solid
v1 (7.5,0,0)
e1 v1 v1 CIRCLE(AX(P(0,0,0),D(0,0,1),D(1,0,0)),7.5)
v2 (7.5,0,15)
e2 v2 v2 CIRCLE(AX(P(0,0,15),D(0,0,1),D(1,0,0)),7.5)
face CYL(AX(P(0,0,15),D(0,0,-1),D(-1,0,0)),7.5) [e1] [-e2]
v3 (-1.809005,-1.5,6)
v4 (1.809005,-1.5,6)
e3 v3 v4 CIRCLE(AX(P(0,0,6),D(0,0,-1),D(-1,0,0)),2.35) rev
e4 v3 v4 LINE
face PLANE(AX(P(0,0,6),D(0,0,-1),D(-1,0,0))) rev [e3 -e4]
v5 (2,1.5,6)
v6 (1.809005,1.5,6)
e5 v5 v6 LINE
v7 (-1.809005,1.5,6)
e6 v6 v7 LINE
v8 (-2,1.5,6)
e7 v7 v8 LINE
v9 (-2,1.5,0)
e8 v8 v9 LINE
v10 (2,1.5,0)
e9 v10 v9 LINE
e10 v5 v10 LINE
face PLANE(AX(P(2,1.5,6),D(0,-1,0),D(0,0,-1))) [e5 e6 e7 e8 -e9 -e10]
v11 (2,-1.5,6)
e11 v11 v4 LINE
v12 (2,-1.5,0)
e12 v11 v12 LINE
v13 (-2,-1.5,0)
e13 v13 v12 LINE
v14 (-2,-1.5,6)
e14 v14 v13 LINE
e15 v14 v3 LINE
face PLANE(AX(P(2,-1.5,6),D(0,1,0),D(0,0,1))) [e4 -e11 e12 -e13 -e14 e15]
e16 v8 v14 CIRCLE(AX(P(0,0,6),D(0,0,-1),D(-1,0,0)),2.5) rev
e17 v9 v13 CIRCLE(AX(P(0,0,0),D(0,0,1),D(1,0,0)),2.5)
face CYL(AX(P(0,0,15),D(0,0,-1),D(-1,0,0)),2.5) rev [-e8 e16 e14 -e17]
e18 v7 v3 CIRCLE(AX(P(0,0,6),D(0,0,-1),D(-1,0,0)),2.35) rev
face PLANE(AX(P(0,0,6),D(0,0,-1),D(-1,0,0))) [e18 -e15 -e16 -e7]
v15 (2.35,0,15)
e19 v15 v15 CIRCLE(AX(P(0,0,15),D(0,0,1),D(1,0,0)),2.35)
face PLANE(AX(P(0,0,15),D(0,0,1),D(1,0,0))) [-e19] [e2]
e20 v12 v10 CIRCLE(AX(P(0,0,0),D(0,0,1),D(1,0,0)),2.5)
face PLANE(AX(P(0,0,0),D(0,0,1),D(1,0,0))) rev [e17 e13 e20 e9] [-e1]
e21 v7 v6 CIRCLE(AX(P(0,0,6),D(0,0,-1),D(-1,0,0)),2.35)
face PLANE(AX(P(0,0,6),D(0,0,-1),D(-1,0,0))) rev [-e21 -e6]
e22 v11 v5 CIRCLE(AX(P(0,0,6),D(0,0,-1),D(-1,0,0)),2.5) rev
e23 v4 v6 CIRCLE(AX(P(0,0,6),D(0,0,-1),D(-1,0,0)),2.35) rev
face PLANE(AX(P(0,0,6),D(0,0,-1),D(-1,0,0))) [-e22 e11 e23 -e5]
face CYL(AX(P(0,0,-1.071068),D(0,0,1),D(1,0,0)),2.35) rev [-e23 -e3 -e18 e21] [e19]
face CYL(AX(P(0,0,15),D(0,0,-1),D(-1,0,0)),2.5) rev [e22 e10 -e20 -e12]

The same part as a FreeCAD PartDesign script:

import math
import FreeCAD as App
import Part
import Sketcher

V = App.Vector

doc = App.newDocument("Part")
body = doc.addObject("PartDesign::Body", "Body")

sketch1 = body.newObject("Sketcher::SketchObject", "Sketch")
sketch1.AttachmentSupport = (doc.getObject("XY_Plane"), [""])
sketch1.MapMode = "FlatFace"
sketch1.addGeometry([
    Part.Circle(V(0, 0, 0), V(0, 0, 1), 7.5),
    Part.Circle(V(0, 0, 0), V(0, 0, 1), 2.5),
], False)
sketch1.addConstraint([
    Sketcher.Constraint("Coincident", 0, 3, -1, 1),
    Sketcher.Constraint("Coincident", 1, 3, -1, 1),
    Sketcher.Constraint("Diameter", 0, 15.0),
    Sketcher.Constraint("Diameter", 1, 5.0),
])
pad1 = body.newObject("PartDesign::Pad", "Pad")
pad1.Profile = sketch1
pad1.Length = 15

sketch2 = body.newObject("Sketcher::SketchObject", "Sketch001")
sketch2.AttachmentSupport = (doc.getObject("XY_Plane"), [""])
sketch2.MapMode = "FlatFace"
sketch2.addGeometry([
    Part.LineSegment(V(-2, -1.5, 0), V(2, -1.5, 0)),
    Part.ArcOfCircle(Part.Circle(V(0, 0, 0), V(0, 0, 1), 2.5), math.radians(-143), math.radians(-37)),
    Part.LineSegment(V(2, 1.5, 0), V(-2, 1.5, 0)),
    Part.ArcOfCircle(Part.Circle(V(0, 0, 0), V(0, 0, 1), 2.5), math.radians(37), math.radians(143)),
], False)
sketch2.addConstraint([
    Sketcher.Constraint("Coincident", 0, 1, 1, 1),
    Sketcher.Constraint("Coincident", 1, 2, 0, 2),
    Sketcher.Constraint("Coincident", 2, 1, 3, 1),
    Sketcher.Constraint("Coincident", 3, 2, 2, 2),
    Sketcher.Constraint("Horizontal", 0),
    Sketcher.Constraint("Horizontal", 2),
    Sketcher.Constraint("Coincident", 1, 3, -1, 1),
    Sketcher.Constraint("Coincident", 3, 3, -1, 1),
    Sketcher.Constraint("Equal", 1, 3),
    Sketcher.Constraint("Vertical", 1, 2, 2, 1),
    Sketcher.Constraint("Radius", 1, 2.5),
    Sketcher.Constraint("DistanceX", 0, 1, 0, 2, 4.0),
])
pad2 = body.newObject("PartDesign::Pad", "Pad001")
pad2.Profile = sketch2
pad2.Length = 6

sketch3 = body.newObject("Sketcher::SketchObject", "Sketch002")
sketch3.AttachmentSupport = (doc.getObject("XY_Plane"), [""])
sketch3.MapMode = "FlatFace"
sketch3.AttachmentOffset = App.Placement(V(0, 0, 6), App.Rotation())
sketch3.addGeometry([
    Part.Circle(V(0, 0, 0), V(0, 0, 1), 2.5),
    Part.Circle(V(0, 0, 0), V(0, 0, 1), 2.4),
], False)
sketch3.addConstraint([
    Sketcher.Constraint("Coincident", 0, 3, -1, 1),
    Sketcher.Constraint("Coincident", 1, 3, -1, 1),
    Sketcher.Constraint("Diameter", 0, 5.0),
    Sketcher.Constraint("Diameter", 1, 4.7),
])
pad3 = body.newObject("PartDesign::Pad", "Pad002")
pad3.Profile = sketch3
pad3.Length = 9

doc.recompute()
